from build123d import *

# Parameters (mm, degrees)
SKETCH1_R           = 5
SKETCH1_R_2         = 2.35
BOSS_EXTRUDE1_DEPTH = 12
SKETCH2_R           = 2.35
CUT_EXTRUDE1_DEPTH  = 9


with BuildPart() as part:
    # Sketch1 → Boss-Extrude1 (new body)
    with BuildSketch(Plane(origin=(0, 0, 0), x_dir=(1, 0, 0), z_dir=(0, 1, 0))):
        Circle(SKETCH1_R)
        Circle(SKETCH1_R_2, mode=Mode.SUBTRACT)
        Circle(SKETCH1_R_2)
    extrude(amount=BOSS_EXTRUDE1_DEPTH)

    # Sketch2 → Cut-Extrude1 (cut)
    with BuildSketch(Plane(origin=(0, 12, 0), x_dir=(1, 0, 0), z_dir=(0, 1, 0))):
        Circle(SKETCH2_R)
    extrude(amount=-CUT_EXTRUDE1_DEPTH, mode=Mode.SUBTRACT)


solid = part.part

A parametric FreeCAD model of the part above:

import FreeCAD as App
import Part
import Sketcher

V = App.Vector
Q = App.Units.Quantity

doc = App.newDocument("Part")
body = doc.addObject("PartDesign::Body", "Body")

# Sketch on XZ plane
sketch1 = doc.addObject("Sketcher::SketchObject", "Sketch")
body.addObject(sketch1)
sketch1.AttachmentSupport = (doc.XZ_Plane, [""])
sketch1.MapMode = "FlatFace"
sketch1.addGeometry(Part.Circle(V(0, 0, 0), V(0, 0, 1), 5), False)
sketch1.addConstraint([
    Sketcher.Constraint("Coincident", 0, 3, -1, 1),
    Sketcher.Constraint("Diameter", 0, Q("10 mm")),
])
pad1 = doc.addObject("PartDesign::Pad", "Pad")
body.addObject(pad1)
pad1.Profile = sketch1
pad1.Length = 12
pad1.Reversed = True

# Sketch on XZ plane
sketch2 = doc.addObject("Sketcher::SketchObject", "Sketch001")
body.addObject(sketch2)
sketch2.AttachmentSupport = (doc.XZ_Plane, [""])
sketch2.MapMode = "FlatFace"
sketch2.AttachmentOffset = App.Placement(V(0, 0, -12), App.Rotation())
sketch2.addGeometry(Part.Circle(V(0, 0, 0), V(0, 0, 1), 2.4), False)
sketch2.addConstraint([
    Sketcher.Constraint("Coincident", 0, 3, -1, 1),
    Sketcher.Constraint("Diameter", 0, Q("4.7 mm")),
])
pocket1 = doc.addObject("PartDesign::Pocket", "Pocket")
body.addObject(pocket1)
pocket1.Profile = sketch2
pocket1.Length = 9
pocket1.Reversed = True

doc.recompute()
